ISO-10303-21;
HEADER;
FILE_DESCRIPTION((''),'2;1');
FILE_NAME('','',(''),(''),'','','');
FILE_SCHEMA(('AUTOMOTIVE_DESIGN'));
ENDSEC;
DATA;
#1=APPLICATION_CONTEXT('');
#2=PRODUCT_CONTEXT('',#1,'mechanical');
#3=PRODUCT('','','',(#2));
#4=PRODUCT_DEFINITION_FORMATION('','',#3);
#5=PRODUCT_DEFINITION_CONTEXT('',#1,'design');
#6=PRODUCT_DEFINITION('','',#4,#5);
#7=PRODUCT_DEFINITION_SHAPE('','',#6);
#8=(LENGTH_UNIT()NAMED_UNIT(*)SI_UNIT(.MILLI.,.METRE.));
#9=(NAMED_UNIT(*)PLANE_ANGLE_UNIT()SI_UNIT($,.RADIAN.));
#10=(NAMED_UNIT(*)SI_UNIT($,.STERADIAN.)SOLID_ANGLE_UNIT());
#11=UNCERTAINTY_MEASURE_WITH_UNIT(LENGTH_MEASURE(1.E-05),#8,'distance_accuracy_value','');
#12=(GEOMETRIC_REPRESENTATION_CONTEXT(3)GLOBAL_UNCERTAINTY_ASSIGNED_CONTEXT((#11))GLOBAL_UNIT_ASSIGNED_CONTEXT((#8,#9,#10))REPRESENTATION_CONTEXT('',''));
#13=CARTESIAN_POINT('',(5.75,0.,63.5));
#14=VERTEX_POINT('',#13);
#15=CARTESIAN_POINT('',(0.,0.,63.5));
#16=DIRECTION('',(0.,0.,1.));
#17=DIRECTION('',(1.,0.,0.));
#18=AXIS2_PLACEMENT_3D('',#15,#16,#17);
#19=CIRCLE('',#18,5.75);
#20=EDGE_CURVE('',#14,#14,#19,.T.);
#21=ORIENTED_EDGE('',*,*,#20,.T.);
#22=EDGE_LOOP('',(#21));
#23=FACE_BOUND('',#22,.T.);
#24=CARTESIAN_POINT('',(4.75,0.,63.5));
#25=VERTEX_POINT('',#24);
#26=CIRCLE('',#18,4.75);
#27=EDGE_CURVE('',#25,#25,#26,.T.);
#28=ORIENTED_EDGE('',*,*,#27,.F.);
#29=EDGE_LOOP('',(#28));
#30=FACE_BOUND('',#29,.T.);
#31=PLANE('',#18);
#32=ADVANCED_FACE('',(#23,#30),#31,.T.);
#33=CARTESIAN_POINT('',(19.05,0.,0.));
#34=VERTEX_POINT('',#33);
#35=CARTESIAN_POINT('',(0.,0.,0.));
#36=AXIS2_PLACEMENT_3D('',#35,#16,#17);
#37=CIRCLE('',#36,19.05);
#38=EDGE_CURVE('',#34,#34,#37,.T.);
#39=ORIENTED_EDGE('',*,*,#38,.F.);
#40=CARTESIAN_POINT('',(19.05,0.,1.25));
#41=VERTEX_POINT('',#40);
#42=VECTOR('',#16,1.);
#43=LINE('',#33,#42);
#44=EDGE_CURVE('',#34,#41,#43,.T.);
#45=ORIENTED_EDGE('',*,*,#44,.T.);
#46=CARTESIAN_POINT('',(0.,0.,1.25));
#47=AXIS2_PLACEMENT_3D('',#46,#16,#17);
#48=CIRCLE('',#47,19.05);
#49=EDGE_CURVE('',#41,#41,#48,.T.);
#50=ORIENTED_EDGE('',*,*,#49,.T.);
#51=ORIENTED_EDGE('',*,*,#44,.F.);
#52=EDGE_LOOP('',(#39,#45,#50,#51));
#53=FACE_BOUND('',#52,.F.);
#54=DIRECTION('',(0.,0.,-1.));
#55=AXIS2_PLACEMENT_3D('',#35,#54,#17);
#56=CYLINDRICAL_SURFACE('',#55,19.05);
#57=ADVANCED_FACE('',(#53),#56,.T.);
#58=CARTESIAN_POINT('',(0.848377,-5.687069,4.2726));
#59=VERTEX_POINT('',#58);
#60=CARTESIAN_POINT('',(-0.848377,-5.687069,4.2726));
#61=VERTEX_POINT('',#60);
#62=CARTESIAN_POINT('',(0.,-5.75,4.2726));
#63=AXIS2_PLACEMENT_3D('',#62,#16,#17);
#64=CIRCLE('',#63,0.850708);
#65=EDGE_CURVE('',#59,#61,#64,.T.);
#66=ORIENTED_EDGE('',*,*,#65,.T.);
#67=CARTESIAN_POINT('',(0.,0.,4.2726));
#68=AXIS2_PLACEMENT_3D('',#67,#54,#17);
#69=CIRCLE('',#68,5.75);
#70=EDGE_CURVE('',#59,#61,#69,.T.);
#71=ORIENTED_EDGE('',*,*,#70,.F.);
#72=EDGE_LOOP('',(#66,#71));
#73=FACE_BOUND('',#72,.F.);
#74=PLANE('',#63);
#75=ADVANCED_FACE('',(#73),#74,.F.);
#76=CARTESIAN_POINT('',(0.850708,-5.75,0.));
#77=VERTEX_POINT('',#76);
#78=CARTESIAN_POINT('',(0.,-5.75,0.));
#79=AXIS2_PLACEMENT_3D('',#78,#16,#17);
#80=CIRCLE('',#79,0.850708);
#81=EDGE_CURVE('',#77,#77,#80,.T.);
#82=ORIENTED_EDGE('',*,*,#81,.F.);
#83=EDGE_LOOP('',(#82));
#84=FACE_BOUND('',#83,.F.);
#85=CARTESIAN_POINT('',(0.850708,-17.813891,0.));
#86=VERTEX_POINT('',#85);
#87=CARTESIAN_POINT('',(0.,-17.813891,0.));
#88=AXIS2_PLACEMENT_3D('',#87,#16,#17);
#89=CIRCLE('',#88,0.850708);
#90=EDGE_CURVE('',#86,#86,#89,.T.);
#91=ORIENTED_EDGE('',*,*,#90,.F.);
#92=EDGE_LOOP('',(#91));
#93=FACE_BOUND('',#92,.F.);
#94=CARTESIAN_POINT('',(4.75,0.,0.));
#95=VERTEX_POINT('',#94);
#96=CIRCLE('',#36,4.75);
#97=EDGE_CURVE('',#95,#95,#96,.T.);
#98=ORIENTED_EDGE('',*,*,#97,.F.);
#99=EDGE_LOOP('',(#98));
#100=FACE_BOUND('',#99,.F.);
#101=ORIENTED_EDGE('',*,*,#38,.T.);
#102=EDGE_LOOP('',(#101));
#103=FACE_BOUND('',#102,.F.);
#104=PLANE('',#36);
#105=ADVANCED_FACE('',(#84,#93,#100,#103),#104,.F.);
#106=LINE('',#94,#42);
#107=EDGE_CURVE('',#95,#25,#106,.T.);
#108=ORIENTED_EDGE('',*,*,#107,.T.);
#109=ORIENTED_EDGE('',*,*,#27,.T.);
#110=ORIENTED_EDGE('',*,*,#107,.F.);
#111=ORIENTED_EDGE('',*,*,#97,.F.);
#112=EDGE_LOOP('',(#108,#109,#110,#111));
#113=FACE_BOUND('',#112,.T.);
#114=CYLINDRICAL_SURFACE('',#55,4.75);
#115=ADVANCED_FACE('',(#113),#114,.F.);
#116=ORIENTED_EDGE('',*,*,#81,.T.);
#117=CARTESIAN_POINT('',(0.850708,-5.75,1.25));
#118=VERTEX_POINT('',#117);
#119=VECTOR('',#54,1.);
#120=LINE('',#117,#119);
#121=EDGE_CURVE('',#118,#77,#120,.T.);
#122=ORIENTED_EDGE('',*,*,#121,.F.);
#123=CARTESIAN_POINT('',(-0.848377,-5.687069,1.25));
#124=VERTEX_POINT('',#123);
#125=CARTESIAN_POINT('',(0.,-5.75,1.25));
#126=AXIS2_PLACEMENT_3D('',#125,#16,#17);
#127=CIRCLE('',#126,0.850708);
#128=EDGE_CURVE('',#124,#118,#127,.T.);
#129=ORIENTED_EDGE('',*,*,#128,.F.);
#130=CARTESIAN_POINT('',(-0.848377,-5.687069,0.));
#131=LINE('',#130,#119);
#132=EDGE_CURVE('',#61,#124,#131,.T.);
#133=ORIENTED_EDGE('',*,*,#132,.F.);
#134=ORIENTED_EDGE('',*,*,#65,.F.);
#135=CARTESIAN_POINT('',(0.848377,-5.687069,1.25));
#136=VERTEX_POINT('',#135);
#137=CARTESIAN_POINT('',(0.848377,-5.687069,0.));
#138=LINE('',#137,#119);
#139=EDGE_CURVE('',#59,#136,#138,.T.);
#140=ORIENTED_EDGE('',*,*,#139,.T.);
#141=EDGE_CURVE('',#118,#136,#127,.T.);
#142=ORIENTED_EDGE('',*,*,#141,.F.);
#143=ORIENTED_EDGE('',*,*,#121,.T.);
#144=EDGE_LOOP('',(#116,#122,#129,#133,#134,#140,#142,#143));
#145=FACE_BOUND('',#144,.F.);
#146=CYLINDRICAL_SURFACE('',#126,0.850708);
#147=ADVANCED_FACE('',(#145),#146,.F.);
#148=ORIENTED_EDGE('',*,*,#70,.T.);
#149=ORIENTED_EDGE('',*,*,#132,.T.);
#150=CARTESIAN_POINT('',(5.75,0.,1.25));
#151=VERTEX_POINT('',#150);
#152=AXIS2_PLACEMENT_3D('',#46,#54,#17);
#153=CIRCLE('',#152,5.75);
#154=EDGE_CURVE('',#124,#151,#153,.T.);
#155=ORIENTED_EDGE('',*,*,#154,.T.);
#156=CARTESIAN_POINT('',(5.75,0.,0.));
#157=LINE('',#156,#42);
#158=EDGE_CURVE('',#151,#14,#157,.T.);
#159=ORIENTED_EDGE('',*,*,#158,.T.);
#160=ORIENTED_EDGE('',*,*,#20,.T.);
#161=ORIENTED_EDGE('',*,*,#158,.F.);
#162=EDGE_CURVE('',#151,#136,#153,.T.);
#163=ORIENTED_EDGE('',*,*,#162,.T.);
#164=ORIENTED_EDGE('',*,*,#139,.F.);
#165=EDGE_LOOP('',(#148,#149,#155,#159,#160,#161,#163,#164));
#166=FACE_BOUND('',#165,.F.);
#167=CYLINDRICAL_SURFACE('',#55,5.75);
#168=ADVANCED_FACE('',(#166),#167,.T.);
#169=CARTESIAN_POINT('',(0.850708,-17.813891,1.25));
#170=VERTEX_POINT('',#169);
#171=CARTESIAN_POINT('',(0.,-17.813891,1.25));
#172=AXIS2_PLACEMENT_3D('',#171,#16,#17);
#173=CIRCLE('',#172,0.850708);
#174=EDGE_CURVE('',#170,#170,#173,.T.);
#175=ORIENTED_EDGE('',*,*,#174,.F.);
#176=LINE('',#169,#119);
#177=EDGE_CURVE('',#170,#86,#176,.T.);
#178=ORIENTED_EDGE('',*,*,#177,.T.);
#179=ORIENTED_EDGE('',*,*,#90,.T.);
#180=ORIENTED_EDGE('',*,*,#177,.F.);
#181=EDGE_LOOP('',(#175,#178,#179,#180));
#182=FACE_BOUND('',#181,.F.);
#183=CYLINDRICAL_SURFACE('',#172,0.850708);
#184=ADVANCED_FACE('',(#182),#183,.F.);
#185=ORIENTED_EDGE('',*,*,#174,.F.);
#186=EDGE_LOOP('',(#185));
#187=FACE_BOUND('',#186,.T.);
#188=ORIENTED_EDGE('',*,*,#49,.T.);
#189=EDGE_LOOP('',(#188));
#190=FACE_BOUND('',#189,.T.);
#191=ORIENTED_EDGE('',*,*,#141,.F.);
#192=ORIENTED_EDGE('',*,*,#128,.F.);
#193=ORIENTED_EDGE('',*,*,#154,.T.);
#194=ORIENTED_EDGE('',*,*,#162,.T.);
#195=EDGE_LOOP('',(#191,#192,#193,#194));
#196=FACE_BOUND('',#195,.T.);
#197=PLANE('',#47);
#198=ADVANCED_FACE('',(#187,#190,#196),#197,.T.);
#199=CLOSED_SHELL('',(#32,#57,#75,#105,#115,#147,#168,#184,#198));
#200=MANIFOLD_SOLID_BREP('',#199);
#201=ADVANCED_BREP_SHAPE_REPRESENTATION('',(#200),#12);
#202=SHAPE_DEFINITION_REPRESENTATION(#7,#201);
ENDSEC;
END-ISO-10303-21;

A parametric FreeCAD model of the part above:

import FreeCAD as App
import Part
import Sketcher
Q = App.Units.Quantity

doc = App.newDocument("Part")
params = doc.addObject("Spreadsheet::Sheet", "Params")
for row, (alias, value) in enumerate([
    ("sketch1_diameter", "1.5 in"),
    ("pad1_length", "1.25 mm"),
    ("pad2_length", "2.5 in"),
    ("pocket1_length", "1 in"),
    ("pocket1_length2", "0.119 in"),
], start=1):
    params.set(f"A{row}", alias)
    params.set(f"B{row}", "=" + value)
    params.setAlias(f"B{row}", alias)

body = doc.addObject("PartDesign::Body", "Body")

# Sketch on XY plane
sketch1 = body.newObject("Sketcher::SketchObject", "Sketch")
sketch1.AttachmentSupport = (doc.getObject("XY_Plane"), [""])
sketch1.MapMode = "FlatFace"
sketch1.addGeometry([
    Part.Circle(App.Vector(0, 0, 0), App.Vector(0, 0, 1), 19.1),
    Part.Circle(App.Vector(0, 0, 0), App.Vector(0, 0, 1), 4.8),
], False)
sketch1.addConstraint([
    Sketcher.Constraint("Coincident", 0, 3, -1, 1),
    Sketcher.Constraint("Coincident", 1, 3, -1, 1),
    Sketcher.Constraint("Diameter", 0, Q("1.5 in")),
    Sketcher.Constraint("Diameter", 1, 9.5),
])
sketch1.setExpression("Constraints[2]", "Params.sketch1_diameter")
pad1 = body.newObject("PartDesign::Pad", "Pad")
pad1.Profile = sketch1
pad1.setExpression("Length", "Params.pad1_length")

# Sketch on XY plane
sketch2 = body.newObject("Sketcher::SketchObject", "Sketch001")
sketch2.AttachmentSupport = (doc.getObject("XY_Plane"), [""])
sketch2.MapMode = "FlatFace"
sketch2.addGeometry([
    Part.Circle(App.Vector(0, 0, 0), App.Vector(0, 0, 1), 5.8),
    Part.Circle(App.Vector(0, 0, 0), App.Vector(0, 0, 1), 4.8),
], False)
sketch2.addConstraint([
    Sketcher.Constraint("Coincident", 0, 3, -1, 1),
    Sketcher.Constraint("Coincident", 1, 3, -1, 1),
    Sketcher.Constraint("Diameter", 0, 11.5),
    Sketcher.Constraint("Diameter", 1, 9.5),
])
pad2 = body.newObject("PartDesign::Pad", "Pad001")
pad2.Profile = sketch2
pad2.setExpression("Length", "Params.pad2_length")

# Sketch on XY plane
sketch3 = body.newObject("Sketcher::SketchObject", "Sketch002")
sketch3.AttachmentSupport = (doc.getObject("XY_Plane"), [""])
sketch3.MapMode = "FlatFace"
sketch3.AttachmentOffset = App.Placement(App.Vector(0, 0, 1.25), App.Rotation())
sketch3.addGeometry([
    Part.Circle(App.Vector(0, -5.8, 0), App.Vector(0, 0, 1), 0.9),
    Part.Circle(App.Vector(0, -17.8, 0), App.Vector(0, 0, 1), 0.9),
], False)
sketch3.addConstraint([
    Sketcher.Constraint("Equal", 0, 1),
    Sketcher.Constraint("PointOnObject", 0, 3, -2),
    Sketcher.Constraint("PointOnObject", 1, 3, -2),
    Sketcher.Constraint("Diameter", 0, 1.701416),
    Sketcher.Constraint("DistanceY", 0, 3, -1, 1, 5.75),
    Sketcher.Constraint("DistanceY", 1, 3, -1, 1, 17.813891),
])
pocket1 = body.newObject("PartDesign::Pocket", "Pocket")
pocket1.Profile = sketch3
pocket1.Type = "TwoLengths"
pocket1.setExpression("Length", "Params.pocket1_length")
pocket1.setExpression("Length2", "Params.pocket1_length2")

doc.recompute()
